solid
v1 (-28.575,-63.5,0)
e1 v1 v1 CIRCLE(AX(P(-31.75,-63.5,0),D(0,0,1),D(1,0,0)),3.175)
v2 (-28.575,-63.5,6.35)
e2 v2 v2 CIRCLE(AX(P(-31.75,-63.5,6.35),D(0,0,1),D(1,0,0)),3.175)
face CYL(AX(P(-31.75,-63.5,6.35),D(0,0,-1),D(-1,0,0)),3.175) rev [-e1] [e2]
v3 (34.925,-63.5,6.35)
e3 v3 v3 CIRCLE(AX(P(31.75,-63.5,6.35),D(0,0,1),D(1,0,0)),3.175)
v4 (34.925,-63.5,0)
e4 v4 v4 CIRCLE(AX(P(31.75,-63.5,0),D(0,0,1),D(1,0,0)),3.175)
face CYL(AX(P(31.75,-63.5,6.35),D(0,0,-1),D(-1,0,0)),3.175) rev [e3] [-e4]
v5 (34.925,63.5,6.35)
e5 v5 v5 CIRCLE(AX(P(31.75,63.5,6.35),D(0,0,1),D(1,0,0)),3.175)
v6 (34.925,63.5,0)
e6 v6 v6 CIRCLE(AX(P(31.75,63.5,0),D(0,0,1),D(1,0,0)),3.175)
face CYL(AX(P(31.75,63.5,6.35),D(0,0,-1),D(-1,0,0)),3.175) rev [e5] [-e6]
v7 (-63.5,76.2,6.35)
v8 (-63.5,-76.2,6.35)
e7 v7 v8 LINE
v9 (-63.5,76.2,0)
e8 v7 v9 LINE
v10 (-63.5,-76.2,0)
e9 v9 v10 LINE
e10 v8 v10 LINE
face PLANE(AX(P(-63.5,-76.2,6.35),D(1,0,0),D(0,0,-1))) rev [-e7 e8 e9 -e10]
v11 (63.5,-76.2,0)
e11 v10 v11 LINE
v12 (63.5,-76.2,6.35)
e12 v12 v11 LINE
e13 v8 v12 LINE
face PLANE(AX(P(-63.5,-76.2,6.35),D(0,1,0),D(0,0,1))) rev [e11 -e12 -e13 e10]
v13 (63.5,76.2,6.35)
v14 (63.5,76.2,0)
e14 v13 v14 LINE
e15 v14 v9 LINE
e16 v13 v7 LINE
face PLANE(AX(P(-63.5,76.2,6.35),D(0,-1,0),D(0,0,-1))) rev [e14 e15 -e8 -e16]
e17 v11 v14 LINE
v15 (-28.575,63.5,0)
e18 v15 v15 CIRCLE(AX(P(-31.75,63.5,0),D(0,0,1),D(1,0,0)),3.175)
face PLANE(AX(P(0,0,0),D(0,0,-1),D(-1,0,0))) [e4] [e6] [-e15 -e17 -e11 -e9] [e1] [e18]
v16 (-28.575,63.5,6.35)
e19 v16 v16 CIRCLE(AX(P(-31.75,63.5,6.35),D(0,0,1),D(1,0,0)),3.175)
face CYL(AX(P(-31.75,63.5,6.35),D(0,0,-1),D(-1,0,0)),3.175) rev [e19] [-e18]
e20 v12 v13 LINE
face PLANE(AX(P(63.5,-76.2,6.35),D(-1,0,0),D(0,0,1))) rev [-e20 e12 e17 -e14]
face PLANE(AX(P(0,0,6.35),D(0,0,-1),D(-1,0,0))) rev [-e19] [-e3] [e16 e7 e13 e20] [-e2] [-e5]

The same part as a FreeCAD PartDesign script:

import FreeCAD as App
import Part
import Sketcher
from FreeCAD import Vector
Q = App.Units.Quantity


def add_polygon(sketch, points):
    """Adds a closed chain of lines whose ends are joined by coincident constraints."""
    first, n = sketch.GeometryCount, len(points)
    for a, b in zip(points, points[1:] + points[:1]):
        sketch.addGeometry(Part.LineSegment(App.Vector(*a, 0), App.Vector(*b, 0)), False)
    for i in range(n):
        sketch.addConstraint(Sketcher.Constraint("Coincident", first + i, 2, first + (i + 1) % n, 1))

doc = App.newDocument("Part")
body = doc.addObject("PartDesign::Body", "Body")

# Sketch on XY plane
sketch1 = body.newObject("Sketcher::SketchObject", "Sketch")
sketch1.AttachmentSupport = (doc.getObject("XY_Plane"), [""])
sketch1.MapMode = "FlatFace"
add_polygon(sketch1, [(-63.5, 76.2), (-63.5, -76.2), (63.5, -76.2), (63.5, 76.2)])  # lines 0-3
sketch1.addGeometry(Part.Circle(Vector(-31.8, -63.5, 0), Vector(0, 0, 1), 3.2), False)  # 4
sketch1.addGeometry(Part.Circle(Vector(31.8, -63.5, 0), Vector(0, 0, 1), 3.2), False)  # 5
sketch1.addGeometry(Part.Circle(Vector(-31.8, 63.5, 0), Vector(0, 0, 1), 3.2), False)  # 6
sketch1.addGeometry(Part.Circle(Vector(31.8, 63.5, 0), Vector(0, 0, 1), 3.2), False)  # 7
sketch1.addConstraint(Sketcher.Constraint("Vertical", 0))
sketch1.addConstraint(Sketcher.Constraint("Horizontal", 1))
sketch1.addConstraint(Sketcher.Constraint("Vertical", 2))
sketch1.addConstraint(Sketcher.Constraint("Horizontal", 3))
sketch1.addConstraint(Sketcher.Constraint("Equal", 4, 5))
sketch1.addConstraint(Sketcher.Constraint("Equal", 5, 6))
sketch1.addConstraint(Sketcher.Constraint("Equal", 6, 7))
sketch1.addConstraint(Sketcher.Constraint("Symmetric", 5, 3, 6, 3, -1, 1))
sketch1.addConstraint(Sketcher.Constraint("Symmetric", 4, 3, 7, 3, -1, 1))
sketch1.addConstraint(Sketcher.Constraint("Symmetric", 0, 2, 2, 2, -1, 1))
sketch1.addConstraint(Sketcher.Constraint("Symmetric", 4, 3, 5, 3, -2))
sketch1.addConstraint(Sketcher.Constraint("Diameter", 4, Q("0.25 in")))
sketch1.addConstraint(Sketcher.Constraint("DistanceX", 1, 1, 1, 2, Q("5 in")))
sketch1.addConstraint(Sketcher.Constraint("DistanceY", 0, 2, 0, 1, Q("6 in")))
sketch1.addConstraint(Sketcher.Constraint("DistanceY", 4, 3, 6, 3, Q("5 in")))
sketch1.addConstraint(Sketcher.Constraint("DistanceX", 4, 3, 5, 3, Q("2.5 in")))
pad1 = body.newObject("PartDesign::Pad", "Pad")
pad1.Profile = sketch1
pad1.Length = Q("0.25 in")

doc.recompute()
